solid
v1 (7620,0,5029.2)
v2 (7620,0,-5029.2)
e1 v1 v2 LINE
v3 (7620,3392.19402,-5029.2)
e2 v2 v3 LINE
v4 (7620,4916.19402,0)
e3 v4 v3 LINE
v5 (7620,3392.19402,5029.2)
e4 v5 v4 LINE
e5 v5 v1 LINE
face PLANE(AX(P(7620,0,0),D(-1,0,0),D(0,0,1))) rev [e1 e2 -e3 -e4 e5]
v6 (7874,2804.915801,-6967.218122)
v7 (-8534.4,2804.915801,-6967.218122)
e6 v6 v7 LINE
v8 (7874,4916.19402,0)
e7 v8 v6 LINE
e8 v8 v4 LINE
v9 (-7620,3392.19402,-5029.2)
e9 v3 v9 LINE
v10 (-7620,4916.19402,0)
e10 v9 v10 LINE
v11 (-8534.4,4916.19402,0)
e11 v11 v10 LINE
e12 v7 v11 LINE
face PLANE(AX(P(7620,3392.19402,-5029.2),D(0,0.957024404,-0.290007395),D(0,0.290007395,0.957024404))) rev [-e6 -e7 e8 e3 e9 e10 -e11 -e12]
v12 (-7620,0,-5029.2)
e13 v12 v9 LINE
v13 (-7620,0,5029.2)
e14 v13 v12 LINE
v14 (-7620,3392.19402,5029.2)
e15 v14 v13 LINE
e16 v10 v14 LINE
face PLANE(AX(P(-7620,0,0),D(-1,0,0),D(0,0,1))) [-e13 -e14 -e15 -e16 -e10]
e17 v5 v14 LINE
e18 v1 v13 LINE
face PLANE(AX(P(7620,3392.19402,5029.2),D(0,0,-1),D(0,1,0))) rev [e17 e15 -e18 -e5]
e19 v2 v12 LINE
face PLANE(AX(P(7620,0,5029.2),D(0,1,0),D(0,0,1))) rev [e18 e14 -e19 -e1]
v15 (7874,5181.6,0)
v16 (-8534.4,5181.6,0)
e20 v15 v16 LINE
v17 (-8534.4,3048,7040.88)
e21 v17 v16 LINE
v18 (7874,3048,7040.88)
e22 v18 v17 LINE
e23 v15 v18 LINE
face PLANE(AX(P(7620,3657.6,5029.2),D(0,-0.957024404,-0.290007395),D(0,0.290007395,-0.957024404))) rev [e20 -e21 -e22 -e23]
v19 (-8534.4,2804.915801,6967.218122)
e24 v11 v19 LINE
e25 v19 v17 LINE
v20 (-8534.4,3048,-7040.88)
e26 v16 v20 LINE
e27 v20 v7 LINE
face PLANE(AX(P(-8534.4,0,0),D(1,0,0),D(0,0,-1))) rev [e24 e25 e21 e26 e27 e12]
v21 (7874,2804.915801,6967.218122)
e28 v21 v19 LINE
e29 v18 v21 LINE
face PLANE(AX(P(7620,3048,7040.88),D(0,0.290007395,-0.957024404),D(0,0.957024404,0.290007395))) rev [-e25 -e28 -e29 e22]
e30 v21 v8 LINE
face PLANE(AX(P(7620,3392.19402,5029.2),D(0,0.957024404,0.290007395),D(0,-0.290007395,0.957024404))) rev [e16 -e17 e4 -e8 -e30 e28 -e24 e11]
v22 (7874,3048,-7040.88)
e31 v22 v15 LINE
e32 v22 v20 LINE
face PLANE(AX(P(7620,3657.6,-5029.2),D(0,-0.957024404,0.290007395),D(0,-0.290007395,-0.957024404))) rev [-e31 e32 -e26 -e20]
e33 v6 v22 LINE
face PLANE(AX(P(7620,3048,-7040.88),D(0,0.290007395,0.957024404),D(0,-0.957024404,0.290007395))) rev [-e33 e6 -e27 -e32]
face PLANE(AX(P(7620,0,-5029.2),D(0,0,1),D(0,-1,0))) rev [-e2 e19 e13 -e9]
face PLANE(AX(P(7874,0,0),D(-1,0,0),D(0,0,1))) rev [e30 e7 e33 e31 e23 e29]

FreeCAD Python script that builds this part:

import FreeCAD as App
import Part
import Sketcher
Q = App.Units.Quantity

doc = App.newDocument("Part")
body = doc.addObject("PartDesign::Body", "Body")

sketch1 = body.newObject("Sketcher::SketchObject", "Sketch")
sketch1.AttachmentSupport = (doc.getObject("YZ_Plane"), [""])
sketch1.MapMode = "FlatFace"
sketch1.addGeometry(Part.LineSegment(App.Vector(0, 5029, 0), App.Vector(0, -5029, 0)), False)
sketch1.addGeometry(Part.LineSegment(App.Vector(0, -5029, 0), App.Vector(3392, -5029, 0)), False)
sketch1.addGeometry(Part.LineSegment(App.Vector(3392, -5029, 0), App.Vector(2805, -6967, 0)), False)
sketch1.addGeometry(Part.LineSegment(App.Vector(2805, -6967, 0), App.Vector(3048, -7041, 0)), False)
sketch1.addGeometry(Part.LineSegment(App.Vector(3048, -7041, 0), App.Vector(5182, 0, 0)), False)
sketch1.addGeometry(Part.LineSegment(App.Vector(5182, 0, 0), App.Vector(3048, 7041, 0)), False)
sketch1.addGeometry(Part.LineSegment(App.Vector(3048, 7041, 0), App.Vector(2805, 6967, 0)), False)
sketch1.addGeometry(Part.LineSegment(App.Vector(2805, 6967, 0), App.Vector(3392, 5029, 0)), False)
sketch1.addGeometry(Part.LineSegment(App.Vector(3392, 5029, 0), App.Vector(0, 5029, 0)), False)
sketch1.addConstraint(Sketcher.Constraint("Coincident", 0, 2, 1, 1))
sketch1.addConstraint(Sketcher.Constraint("Coincident", 1, 2, 2, 1))
sketch1.addConstraint(Sketcher.Constraint("Coincident", 2, 2, 3, 1))
sketch1.addConstraint(Sketcher.Constraint("Coincident", 3, 2, 4, 1))
sketch1.addConstraint(Sketcher.Constraint("Coincident", 4, 2, 5, 1))
sketch1.addConstraint(Sketcher.Constraint("Coincident", 5, 2, 6, 1))
sketch1.addConstraint(Sketcher.Constraint("Coincident", 6, 2, 7, 1))
sketch1.addConstraint(Sketcher.Constraint("Coincident", 7, 2, 8, 1))
sketch1.addConstraint(Sketcher.Constraint("Coincident", 8, 2, 0, 1))
sketch1.addConstraint(Sketcher.Constraint("Vertical", 0))
sketch1.addConstraint(Sketcher.Constraint("Horizontal", 1))
sketch1.addConstraint(Sketcher.Constraint("Horizontal", 8))
sketch1.addConstraint(Sketcher.Constraint("Symmetric", 0, 2, 8, 2, -1, 1))
sketch1.addConstraint(Sketcher.Constraint("Symmetric", 3, 2, 5, 2, -1))
sketch1.addConstraint(Sketcher.Constraint("Symmetric", 2, 2, 6, 2, -1))
sketch1.addConstraint(Sketcher.Constraint("PointOnObject", 4, 2, -1))
sketch1.addConstraint(Sketcher.Constraint("Perpendicular", 2, 3))
sketch1.addConstraint(Sketcher.Constraint("Perpendicular", 3, 4))
sketch1.addConstraint(Sketcher.Constraint("Perpendicular", 6, 7))
sketch1.addConstraint(Sketcher.Constraint("DistanceY", 0, 2, 0, 1, Q("396 in")))
sketch1.addConstraint(Sketcher.Constraint("Distance", 3, Q("10 in")))
sketch1.addConstraint(Sketcher.Constraint("DistanceX", -1, 1, 3, 2, Q("120 in")))
sketch1.addConstraint(Sketcher.Constraint("DistanceX", -1, 1, 4, 2, Q("204 in")))
sketch1.addConstraint(Sketcher.Constraint("DistanceY", 3, 2, -1, 1, Q("277.2 in")))
pad1 = body.newObject("PartDesign::Pad", "Pad")
pad1.Profile = sketch1
pad1.Length = Q("600 in")
pad1.Midplane = True

sketch2 = body.newObject("Sketcher::SketchObject", "Sketch001")
sketch2.AttachmentSupport = (doc.getObject("YZ_Plane"), [""])
sketch2.MapMode = "FlatFace"
sketch2.AttachmentOffset = App.Placement(App.Vector(0, 0, 300 * 25.4), App.Rotation())
sketch2.addGeometry(Part.LineSegment(App.Vector(2805, 6967, 0), App.Vector(4916, 0, 0)), False)
sketch2.addGeometry(Part.LineSegment(App.Vector(4916, 0, 0), App.Vector(2805, -6967, 0)), False)
sketch2.addGeometry(Part.LineSegment(App.Vector(2805, -6967, 0), App.Vector(3048, -7041, 0)), False)
sketch2.addGeometry(Part.LineSegment(App.Vector(3048, -7041, 0), App.Vector(5182, 0, 0)), False)
sketch2.addGeometry(Part.LineSegment(App.Vector(5182, 0, 0), App.Vector(3048, 7041, 0)), False)
sketch2.addGeometry(Part.LineSegment(App.Vector(3048, 7041, 0), App.Vector(2805, 6967, 0)), False)
sketch2.addConstraint(Sketcher.Constraint("Coincident", 0, 2, 1, 1))
sketch2.addConstraint(Sketcher.Constraint("Coincident", 1, 2, 2, 1))
sketch2.addConstraint(Sketcher.Constraint("Coincident", 2, 2, 3, 1))
sketch2.addConstraint(Sketcher.Constraint("Coincident", 3, 2, 4, 1))
sketch2.addConstraint(Sketcher.Constraint("Coincident", 4, 2, 5, 1))
sketch2.addConstraint(Sketcher.Constraint("Coincident", 5, 2, 0, 1))
sketch2.addConstraint(Sketcher.Constraint("Symmetric", 2, 2, 4, 2, -1))
sketch2.addConstraint(Sketcher.Constraint("Symmetric", 1, 2, 5, 2, -1))
sketch2.addConstraint(Sketcher.Constraint("PointOnObject", 0, 2, -1))
sketch2.addConstraint(Sketcher.Constraint("PointOnObject", 3, 2, -1))
sketch2.addConstraint(Sketcher.Constraint("Perpendicular", 1, 2))
sketch2.addConstraint(Sketcher.Constraint("Perpendicular", 2, 3))
sketch2.addConstraint(Sketcher.Constraint("Distance", 2, Q("10 in")))
sketch2.addConstraint(Sketcher.Constraint("DistanceX", -1, 1, 2, 2, Q("120 in")))
sketch2.addConstraint(Sketcher.Constraint("DistanceX", -1, 1, 3, 2, Q("204 in")))
sketch2.addConstraint(Sketcher.Constraint("DistanceY", 2, 2, -1, 1, Q("277.2 in")))
pad2 = body.newObject("PartDesign::Pad", "Pad001")
pad2.Profile = sketch2
pad2.Length = Q("10 in")

sketch3 = body.newObject("Sketcher::SketchObject", "Sketch002")
sketch3.AttachmentSupport = (doc.getObject("YZ_Plane"), [""])
sketch3.MapMode = "FlatFace"
sketch3.AttachmentOffset = App.Placement(App.Vector(0, 0, -300 * 25.4), App.Rotation())
sketch3.addGeometry(Part.LineSegment(App.Vector(2805, 6967, 0), App.Vector(4916, 0, 0)), False)
sketch3.addGeometry(Part.LineSegment(App.Vector(4916, 0, 0), App.Vector(2805, -6967, 0)), False)
sketch3.addGeometry(Part.LineSegment(App.Vector(2805, -6967, 0), App.Vector(3048, -7041, 0)), False)
sketch3.addGeometry(Part.LineSegment(App.Vector(3048, -7041, 0), App.Vector(5182, 0, 0)), False)
sketch3.addGeometry(Part.LineSegment(App.Vector(5182, 0, 0), App.Vector(3048, 7041, 0)), False)
sketch3.addGeometry(Part.LineSegment(App.Vector(3048, 7041, 0), App.Vector(2805, 6967, 0)), False)
sketch3.addConstraint(Sketcher.Constraint("Coincident", 0, 2, 1, 1))
sketch3.addConstraint(Sketcher.Constraint("Coincident", 1, 2, 2, 1))
sketch3.addConstraint(Sketcher.Constraint("Coincident", 2, 2, 3, 1))
sketch3.addConstraint(Sketcher.Constraint("Coincident", 3, 2, 4, 1))
sketch3.addConstraint(Sketcher.Constraint("Coincident", 4, 2, 5, 1))
sketch3.addConstraint(Sketcher.Constraint("Coincident", 5, 2, 0, 1))
sketch3.addConstraint(Sketcher.Constraint("Symmetric", 2, 2, 4, 2, -1))
sketch3.addConstraint(Sketcher.Constraint("Symmetric", 1, 2, 5, 2, -1))
sketch3.addConstraint(Sketcher.Constraint("PointOnObject", 0, 2, -1))
sketch3.addConstraint(Sketcher.Constraint("PointOnObject", 3, 2, -1))
sketch3.addConstraint(Sketcher.Constraint("Perpendicular", 1, 2))
sketch3.addConstraint(Sketcher.Constraint("Perpendicular", 2, 3))
sketch3.addConstraint(Sketcher.Constraint("Distance", 2, Q("10 in")))
sketch3.addConstraint(Sketcher.Constraint("DistanceX", -1, 1, 2, 2, Q("120 in")))
sketch3.addConstraint(Sketcher.Constraint("DistanceX", -1, 1, 3, 2, Q("204 in")))
sketch3.addConstraint(Sketcher.Constraint("DistanceY", 2, 2, -1, 1, Q("277.2 in")))
pad3 = body.newObject("PartDesign::Pad", "Pad002")
pad3.Profile = sketch3
pad3.Length = Q("36 in")
pad3.Reversed = True

doc.recompute()
